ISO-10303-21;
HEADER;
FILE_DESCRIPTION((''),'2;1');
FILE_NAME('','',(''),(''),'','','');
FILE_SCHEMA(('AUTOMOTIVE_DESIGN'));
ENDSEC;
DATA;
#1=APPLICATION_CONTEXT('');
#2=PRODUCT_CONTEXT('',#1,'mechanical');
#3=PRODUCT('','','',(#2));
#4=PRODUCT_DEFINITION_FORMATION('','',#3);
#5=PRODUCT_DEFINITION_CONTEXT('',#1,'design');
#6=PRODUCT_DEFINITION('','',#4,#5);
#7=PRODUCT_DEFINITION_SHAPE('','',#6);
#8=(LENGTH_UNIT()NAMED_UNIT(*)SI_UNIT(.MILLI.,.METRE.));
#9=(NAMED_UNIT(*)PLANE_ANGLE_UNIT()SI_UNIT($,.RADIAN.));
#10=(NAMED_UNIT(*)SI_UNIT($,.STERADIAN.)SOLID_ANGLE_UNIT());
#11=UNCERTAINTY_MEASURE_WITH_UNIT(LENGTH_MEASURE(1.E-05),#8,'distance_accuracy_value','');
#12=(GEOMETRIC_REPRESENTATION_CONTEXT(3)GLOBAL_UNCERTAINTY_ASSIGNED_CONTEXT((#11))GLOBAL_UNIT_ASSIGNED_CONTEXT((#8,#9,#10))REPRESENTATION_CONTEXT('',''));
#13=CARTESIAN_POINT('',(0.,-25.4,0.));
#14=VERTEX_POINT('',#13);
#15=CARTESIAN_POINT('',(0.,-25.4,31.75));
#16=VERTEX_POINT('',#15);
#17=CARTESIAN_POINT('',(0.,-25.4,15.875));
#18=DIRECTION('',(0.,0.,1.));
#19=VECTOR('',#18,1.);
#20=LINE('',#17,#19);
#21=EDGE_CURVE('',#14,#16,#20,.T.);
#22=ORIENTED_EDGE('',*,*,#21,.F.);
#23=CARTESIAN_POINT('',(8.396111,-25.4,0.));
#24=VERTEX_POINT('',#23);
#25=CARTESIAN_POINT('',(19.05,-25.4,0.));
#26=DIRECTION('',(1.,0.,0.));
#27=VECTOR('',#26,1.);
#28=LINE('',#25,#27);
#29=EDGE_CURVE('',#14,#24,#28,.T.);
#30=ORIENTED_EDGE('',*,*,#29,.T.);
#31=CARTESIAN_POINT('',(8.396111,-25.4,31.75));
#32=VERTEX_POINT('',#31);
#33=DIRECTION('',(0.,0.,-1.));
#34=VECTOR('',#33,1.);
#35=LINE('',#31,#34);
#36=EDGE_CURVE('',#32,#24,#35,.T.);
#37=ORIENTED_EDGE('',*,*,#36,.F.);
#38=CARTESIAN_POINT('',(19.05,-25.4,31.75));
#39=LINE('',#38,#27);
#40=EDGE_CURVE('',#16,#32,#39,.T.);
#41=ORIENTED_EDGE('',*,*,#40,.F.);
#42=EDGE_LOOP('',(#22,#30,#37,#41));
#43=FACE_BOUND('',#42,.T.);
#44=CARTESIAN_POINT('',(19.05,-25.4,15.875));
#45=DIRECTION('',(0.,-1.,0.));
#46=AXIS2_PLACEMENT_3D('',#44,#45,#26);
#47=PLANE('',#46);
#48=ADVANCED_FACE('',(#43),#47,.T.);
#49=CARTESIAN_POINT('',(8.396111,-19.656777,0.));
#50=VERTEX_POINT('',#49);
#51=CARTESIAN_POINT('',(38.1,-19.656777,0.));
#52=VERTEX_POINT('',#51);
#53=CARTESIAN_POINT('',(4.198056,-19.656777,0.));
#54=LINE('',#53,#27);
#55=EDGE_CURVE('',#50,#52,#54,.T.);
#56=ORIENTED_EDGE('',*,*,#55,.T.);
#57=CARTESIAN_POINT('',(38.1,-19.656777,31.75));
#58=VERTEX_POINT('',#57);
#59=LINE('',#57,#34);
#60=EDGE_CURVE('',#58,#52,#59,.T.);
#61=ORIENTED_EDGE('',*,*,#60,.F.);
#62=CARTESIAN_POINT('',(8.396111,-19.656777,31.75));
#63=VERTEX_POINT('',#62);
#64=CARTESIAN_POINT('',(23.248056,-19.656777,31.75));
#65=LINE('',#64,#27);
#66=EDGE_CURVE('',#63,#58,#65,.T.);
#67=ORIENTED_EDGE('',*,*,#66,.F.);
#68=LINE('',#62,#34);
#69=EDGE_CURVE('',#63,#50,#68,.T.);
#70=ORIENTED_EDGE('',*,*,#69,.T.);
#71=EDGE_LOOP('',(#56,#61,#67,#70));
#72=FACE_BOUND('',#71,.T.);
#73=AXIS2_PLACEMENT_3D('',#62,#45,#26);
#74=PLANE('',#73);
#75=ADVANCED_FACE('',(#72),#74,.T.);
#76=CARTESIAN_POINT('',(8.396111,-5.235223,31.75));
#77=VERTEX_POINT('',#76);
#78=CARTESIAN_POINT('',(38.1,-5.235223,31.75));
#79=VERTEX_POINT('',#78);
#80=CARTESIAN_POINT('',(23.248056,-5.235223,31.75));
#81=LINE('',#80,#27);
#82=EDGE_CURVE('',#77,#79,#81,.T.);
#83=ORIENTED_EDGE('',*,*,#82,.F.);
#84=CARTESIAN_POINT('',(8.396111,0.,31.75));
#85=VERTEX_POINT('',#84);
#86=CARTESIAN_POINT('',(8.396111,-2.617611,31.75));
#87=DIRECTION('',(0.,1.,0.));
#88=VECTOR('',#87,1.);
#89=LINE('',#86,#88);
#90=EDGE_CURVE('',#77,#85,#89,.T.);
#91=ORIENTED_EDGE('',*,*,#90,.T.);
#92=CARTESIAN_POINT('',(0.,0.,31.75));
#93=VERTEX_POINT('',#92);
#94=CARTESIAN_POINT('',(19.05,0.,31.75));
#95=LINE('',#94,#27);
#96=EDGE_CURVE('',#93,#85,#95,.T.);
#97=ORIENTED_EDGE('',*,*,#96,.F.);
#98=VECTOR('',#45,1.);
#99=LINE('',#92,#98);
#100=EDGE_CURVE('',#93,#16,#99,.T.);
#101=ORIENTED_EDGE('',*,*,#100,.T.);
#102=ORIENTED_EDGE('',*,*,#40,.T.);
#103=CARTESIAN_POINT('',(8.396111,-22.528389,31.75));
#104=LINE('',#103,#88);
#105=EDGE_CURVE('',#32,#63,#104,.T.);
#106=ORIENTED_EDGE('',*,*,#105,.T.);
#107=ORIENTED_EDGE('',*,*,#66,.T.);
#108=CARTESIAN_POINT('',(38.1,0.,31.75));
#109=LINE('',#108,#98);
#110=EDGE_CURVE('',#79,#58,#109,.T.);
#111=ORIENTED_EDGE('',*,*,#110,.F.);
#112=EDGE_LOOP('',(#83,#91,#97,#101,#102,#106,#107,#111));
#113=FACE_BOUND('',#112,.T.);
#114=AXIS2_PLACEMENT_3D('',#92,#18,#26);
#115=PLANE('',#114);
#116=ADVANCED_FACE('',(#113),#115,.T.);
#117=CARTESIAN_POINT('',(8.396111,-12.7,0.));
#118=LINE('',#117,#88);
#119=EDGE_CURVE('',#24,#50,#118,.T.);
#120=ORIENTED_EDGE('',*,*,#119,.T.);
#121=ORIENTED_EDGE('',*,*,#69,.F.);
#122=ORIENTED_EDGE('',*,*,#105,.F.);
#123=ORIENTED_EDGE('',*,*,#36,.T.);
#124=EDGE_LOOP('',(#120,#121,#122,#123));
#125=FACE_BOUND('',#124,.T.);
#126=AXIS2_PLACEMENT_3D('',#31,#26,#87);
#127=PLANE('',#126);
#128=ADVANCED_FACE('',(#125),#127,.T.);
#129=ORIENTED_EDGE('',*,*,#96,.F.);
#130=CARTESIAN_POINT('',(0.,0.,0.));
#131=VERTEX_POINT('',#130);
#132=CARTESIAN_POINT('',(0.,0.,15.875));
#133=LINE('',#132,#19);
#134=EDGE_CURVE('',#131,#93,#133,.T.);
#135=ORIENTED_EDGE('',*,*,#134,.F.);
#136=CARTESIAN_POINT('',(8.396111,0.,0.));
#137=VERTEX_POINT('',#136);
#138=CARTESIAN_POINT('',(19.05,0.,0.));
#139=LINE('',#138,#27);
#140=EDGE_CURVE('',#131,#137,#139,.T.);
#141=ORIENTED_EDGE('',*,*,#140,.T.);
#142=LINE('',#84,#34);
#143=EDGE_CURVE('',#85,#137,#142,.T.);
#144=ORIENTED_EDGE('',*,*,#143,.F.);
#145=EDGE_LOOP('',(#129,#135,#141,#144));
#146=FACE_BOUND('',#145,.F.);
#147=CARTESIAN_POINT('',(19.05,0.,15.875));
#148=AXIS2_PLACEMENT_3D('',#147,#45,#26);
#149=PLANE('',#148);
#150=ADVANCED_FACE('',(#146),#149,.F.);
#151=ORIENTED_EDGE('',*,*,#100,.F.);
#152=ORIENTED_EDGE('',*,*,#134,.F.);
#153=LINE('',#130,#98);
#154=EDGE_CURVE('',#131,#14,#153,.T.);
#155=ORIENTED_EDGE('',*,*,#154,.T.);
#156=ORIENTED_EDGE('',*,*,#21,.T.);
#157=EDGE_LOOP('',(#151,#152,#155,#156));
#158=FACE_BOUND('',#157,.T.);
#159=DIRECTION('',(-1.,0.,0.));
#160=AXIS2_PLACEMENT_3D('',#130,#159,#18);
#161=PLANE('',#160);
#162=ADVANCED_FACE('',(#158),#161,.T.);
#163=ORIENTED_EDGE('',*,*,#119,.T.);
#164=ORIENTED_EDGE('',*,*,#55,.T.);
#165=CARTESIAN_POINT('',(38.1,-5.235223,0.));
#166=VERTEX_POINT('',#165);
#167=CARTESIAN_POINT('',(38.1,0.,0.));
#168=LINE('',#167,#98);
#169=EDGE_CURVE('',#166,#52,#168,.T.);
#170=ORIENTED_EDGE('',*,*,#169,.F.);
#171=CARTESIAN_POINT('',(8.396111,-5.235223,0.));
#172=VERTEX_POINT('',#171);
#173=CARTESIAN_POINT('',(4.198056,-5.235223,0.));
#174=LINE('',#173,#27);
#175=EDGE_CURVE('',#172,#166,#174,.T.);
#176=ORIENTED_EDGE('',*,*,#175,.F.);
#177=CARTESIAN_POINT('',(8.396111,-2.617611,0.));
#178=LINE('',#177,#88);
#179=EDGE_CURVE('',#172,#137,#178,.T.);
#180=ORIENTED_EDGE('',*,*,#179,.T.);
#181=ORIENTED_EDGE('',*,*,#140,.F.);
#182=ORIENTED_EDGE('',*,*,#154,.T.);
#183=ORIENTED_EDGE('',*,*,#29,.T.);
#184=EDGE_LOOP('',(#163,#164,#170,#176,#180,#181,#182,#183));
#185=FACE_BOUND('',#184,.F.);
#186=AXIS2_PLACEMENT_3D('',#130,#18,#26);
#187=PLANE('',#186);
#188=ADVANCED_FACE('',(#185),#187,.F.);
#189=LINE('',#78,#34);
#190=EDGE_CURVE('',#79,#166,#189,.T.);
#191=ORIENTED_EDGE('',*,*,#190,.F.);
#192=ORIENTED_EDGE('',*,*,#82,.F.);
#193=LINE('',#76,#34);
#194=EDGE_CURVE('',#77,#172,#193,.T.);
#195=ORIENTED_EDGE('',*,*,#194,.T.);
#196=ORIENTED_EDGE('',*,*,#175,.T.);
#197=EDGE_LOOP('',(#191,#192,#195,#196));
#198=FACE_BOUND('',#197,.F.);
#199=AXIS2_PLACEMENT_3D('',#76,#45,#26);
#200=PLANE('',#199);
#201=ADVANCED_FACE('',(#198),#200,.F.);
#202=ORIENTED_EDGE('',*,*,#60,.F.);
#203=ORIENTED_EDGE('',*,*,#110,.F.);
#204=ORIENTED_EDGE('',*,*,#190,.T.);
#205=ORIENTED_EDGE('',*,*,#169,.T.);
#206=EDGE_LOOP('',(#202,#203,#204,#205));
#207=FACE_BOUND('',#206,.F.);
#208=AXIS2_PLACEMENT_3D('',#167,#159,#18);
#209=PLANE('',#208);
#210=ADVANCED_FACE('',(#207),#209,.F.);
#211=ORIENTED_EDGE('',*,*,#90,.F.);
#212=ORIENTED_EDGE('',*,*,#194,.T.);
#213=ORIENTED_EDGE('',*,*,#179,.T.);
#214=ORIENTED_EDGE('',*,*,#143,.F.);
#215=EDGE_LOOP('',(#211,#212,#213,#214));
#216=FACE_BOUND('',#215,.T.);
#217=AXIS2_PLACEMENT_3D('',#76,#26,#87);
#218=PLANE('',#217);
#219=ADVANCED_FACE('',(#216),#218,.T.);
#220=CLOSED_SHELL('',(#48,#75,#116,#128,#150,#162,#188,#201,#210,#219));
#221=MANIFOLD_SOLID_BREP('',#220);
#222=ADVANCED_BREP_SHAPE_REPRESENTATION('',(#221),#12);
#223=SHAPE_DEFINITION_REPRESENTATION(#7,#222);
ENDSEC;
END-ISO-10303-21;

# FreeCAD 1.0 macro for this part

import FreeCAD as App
import Part
import Sketcher
from FreeCAD import Vector
Q = App.Units.Quantity

doc = App.newDocument("Part")
body = doc.addObject("PartDesign::Body", "Body")

# Sketch on XZ plane
sketch1 = body.newObject("Sketcher::SketchObject", "Sketch")
sketch1.AttachmentSupport = (doc.getObject("XZ_Plane"), [""])
sketch1.MapMode = "FlatFace"
sketch1.addGeometry([
    Part.LineSegment(Vector(0, 32, 0), Vector(0, 0, 0)),
    Part.LineSegment(Vector(0, 0, 0), Vector(38, 0, 0)),
    Part.LineSegment(Vector(38, 0, 0), Vector(38, 32, 0)),
    Part.LineSegment(Vector(38, 32, 0), Vector(0, 32, 0)),
], False)
sketch1.addConstraint([
    Sketcher.Constraint("Coincident", 0, 2, 1, 1),
    Sketcher.Constraint("Coincident", 1, 2, 2, 1),
    Sketcher.Constraint("Coincident", 2, 2, 3, 1),
    Sketcher.Constraint("Coincident", 3, 2, 0, 1),
    Sketcher.Constraint("Vertical", 0),
    Sketcher.Constraint("Horizontal", 1),
    Sketcher.Constraint("Vertical", 2),
    Sketcher.Constraint("Horizontal", 3),
    Sketcher.Constraint("Coincident", 0, 2, -1, 1),
    Sketcher.Constraint("DistanceX", 1, 1, 1, 2, Q("1.5 in")),
    Sketcher.Constraint("DistanceY", 0, 2, 0, 1, Q("1.25 in")),
])
pad1 = body.newObject("PartDesign::Pad", "Pad")
pad1.Profile = sketch1
pad1.Length = Q("1 in")

# Sketch on XY plane
sketch2 = body.newObject("Sketcher::SketchObject", "Sketch001")
sketch2.AttachmentSupport = (doc.getObject("XY_Plane"), [""])
sketch2.MapMode = "FlatFace"
sketch2.AttachmentOffset = App.Placement(Vector(0, 0, 1.25 * 25.4), App.Rotation())
sketch2.addGeometry([
    Part.LineSegment(Vector(8, 0, 0), Vector(8, -5, 0)),  # 0
    Part.LineSegment(Vector(8, -5, 0), Vector(38, -5, 0)),  # 1
    Part.LineSegment(Vector(38, -5, 0), Vector(38, 0, 0)),  # 2
    Part.LineSegment(Vector(38, 0, 0), Vector(8, 0, 0)),  # 3
    Part.LineSegment(Vector(8, -20, 0), Vector(8, -25, 0)),  # 4
    Part.LineSegment(Vector(8, -25, 0), Vector(38, -25, 0)),  # 5
    Part.LineSegment(Vector(38, -25, 0), Vector(38, -20, 0)),  # 6
    Part.LineSegment(Vector(38, -20, 0), Vector(8, -20, 0)),  # 7
], False)
sketch2.addConstraint([
    Sketcher.Constraint("Coincident", 0, 2, 1, 1),
    Sketcher.Constraint("Coincident", 1, 2, 2, 1),
    Sketcher.Constraint("Coincident", 2, 2, 3, 1),
    Sketcher.Constraint("Coincident", 3, 2, 0, 1),
    Sketcher.Constraint("Coincident", 4, 2, 5, 1),
    Sketcher.Constraint("Coincident", 5, 2, 6, 1),
    Sketcher.Constraint("Coincident", 6, 2, 7, 1),
    Sketcher.Constraint("Coincident", 7, 2, 4, 1),
    Sketcher.Constraint("Vertical", 0),
    Sketcher.Constraint("Horizontal", 1),
    Sketcher.Constraint("Vertical", 2),
    Sketcher.Constraint("Horizontal", 3),
    Sketcher.Constraint("Vertical", 4),
    Sketcher.Constraint("Horizontal", 5),
    Sketcher.Constraint("Vertical", 6),
    Sketcher.Constraint("Horizontal", 7),
    Sketcher.Constraint("PointOnObject", 2, 2, -1),
    Sketcher.Constraint("Vertical", 3, 2, 4, 2),
    Sketcher.Constraint("Vertical", 2, 2, 5, 2),
    Sketcher.Constraint("DistanceY", 4, 2, -1, 1, Q("1 in")),
    Sketcher.Constraint("DistanceX", -1, 1, 1, 2, Q("1.5 in")),
    Sketcher.Constraint("DistanceX", 1, 1, 1, 2, 29.703889),
    Sketcher.Constraint("DistanceY", 0, 2, 0, 1, 5.235223),
    Sketcher.Constraint("DistanceY", 4, 2, 4, 1, 5.743223),
])
pocket1 = body.newObject("PartDesign::Pocket", "Pocket")
pocket1.Profile = sketch2
pocket1.Type = "ThroughAll"

doc.recompute()
